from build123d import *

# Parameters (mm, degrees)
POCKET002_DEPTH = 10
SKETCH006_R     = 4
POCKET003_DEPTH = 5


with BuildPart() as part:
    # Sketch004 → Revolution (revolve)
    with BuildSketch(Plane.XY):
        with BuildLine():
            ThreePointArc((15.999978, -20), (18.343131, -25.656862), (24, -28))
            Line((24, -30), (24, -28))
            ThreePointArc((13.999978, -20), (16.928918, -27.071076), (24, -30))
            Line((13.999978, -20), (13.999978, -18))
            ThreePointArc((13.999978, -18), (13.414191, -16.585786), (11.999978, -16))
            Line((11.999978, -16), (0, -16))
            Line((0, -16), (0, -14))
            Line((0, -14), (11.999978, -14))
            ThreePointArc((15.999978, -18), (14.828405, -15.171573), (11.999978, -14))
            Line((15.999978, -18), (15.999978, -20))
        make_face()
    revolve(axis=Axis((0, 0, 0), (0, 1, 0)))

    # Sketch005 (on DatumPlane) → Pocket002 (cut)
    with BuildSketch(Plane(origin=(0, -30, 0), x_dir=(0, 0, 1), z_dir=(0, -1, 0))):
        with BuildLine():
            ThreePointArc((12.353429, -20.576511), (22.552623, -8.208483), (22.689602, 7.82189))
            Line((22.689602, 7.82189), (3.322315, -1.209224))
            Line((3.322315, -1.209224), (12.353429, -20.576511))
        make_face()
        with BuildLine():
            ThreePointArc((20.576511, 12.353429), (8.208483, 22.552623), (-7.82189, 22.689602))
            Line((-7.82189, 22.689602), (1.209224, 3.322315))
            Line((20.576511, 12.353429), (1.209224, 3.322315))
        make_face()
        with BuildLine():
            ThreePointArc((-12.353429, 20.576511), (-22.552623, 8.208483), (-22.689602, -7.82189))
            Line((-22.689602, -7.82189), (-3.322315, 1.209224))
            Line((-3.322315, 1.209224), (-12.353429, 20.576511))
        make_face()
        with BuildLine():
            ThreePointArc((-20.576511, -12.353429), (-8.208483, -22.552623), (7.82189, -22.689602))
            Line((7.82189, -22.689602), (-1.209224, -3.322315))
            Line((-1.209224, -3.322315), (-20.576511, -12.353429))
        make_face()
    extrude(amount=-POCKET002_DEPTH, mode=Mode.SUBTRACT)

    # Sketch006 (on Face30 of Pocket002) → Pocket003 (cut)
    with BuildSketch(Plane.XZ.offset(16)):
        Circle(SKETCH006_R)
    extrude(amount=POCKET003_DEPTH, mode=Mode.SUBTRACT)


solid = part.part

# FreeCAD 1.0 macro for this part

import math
import FreeCAD as App
import Part
import Sketcher
from FreeCAD import Vector
Q = App.Units.Quantity

doc = App.newDocument("Part")
body = doc.addObject("PartDesign::Body", "Body")

sketch1 = body.newObject("Sketcher::SketchObject", "Sketch")
sketch1.AttachmentSupport = (doc.getObject("XY_Plane"), [""])
sketch1.MapMode = "FlatFace"
sketch1.addGeometry(Part.ArcOfCircle(Part.Circle(Vector(24, -20, 0), Vector(0, 0, 1), 8), math.radians(180), math.radians(270)), False)
sketch1.addGeometry(Part.LineSegment(Vector(16, -20, 0), Vector(16, -18, 0)), False)
sketch1.addGeometry(Part.ArcOfCircle(Part.Circle(Vector(12, -18, 0), Vector(0, 0, 1), 4), math.radians(0), math.radians(90)), False)
sketch1.addGeometry(Part.LineSegment(Vector(12, -14, 0), Vector(0, -14, 0)), False)
sketch1.addGeometry(Part.LineSegment(Vector(0, -14, 0), Vector(0, -16, 0)), False)
sketch1.addGeometry(Part.LineSegment(Vector(0, -16, 0), Vector(12, -16, 0)), False)
sketch1.addGeometry(Part.ArcOfCircle(Part.Circle(Vector(12, -18, 0), Vector(0, 0, 1), 2), math.radians(0), math.radians(90)), False)
sketch1.addGeometry(Part.LineSegment(Vector(14, -18, 0), Vector(14, -20, 0)), False)
sketch1.addGeometry(Part.ArcOfCircle(Part.Circle(Vector(24, -20, 0), Vector(0, 0, 1), 10), math.radians(180), math.radians(270)), False)
sketch1.addGeometry(Part.LineSegment(Vector(24, -30, 0), Vector(24, -28, 0)), False)
sketch1.addConstraint(Sketcher.Constraint("Tangent", 0, 1, 1, 1))
sketch1.addConstraint(Sketcher.Constraint("Tangent", 1, 2, 2, 1))
sketch1.addConstraint(Sketcher.Constraint("Tangent", 2, 2, 3, 1))
sketch1.addConstraint(Sketcher.Constraint("Coincident", 3, 2, 4, 1))
sketch1.addConstraint(Sketcher.Constraint("Coincident", 4, 2, 5, 1))
sketch1.addConstraint(Sketcher.Constraint("Tangent", 5, 2, 6, 2))
sketch1.addConstraint(Sketcher.Constraint("Tangent", 6, 1, 7, 1))
sketch1.addConstraint(Sketcher.Constraint("Tangent", 7, 2, 8, 1))
sketch1.addConstraint(Sketcher.Constraint("Coincident", 8, 2, 9, 1))
sketch1.addConstraint(Sketcher.Constraint("Coincident", 9, 2, 0, 2))
sketch1.addConstraint(Sketcher.Constraint("Vertical", 1))
sketch1.addConstraint(Sketcher.Constraint("Horizontal", 3))
sketch1.addConstraint(Sketcher.Constraint("Vertical", 4))
sketch1.addConstraint(Sketcher.Constraint("Horizontal", 5))
sketch1.addConstraint(Sketcher.Constraint("Vertical", 7))
sketch1.addConstraint(Sketcher.Constraint("Vertical", 9))
sketch1.addConstraint(Sketcher.Constraint("Coincident", 6, 3, 2, 3))
sketch1.addConstraint(Sketcher.Constraint("Coincident", 8, 3, 0, 3))
sketch1.addConstraint(Sketcher.Constraint("PointOnObject", 3, 2, -2))
sketch1.addConstraint(Sketcher.Constraint("Equal", 1, 4))
sketch1.addConstraint(Sketcher.Constraint("Radius", 0, Q("7.999999 mm")))
sketch1.addConstraint(Sketcher.Constraint("Radius", 2, Q("4 mm")))
sketch1.addConstraint(Sketcher.Constraint("Radius", 6, Q("2 mm")))
sketch1.addConstraint(Sketcher.Constraint("DistanceY", 0, 3, -1, 1, Q("20.000001 mm")))
sketch1.addConstraint(Sketcher.Constraint("DistanceX", -1, 1, 8, 2, Q("24 mm")))
sketch1.addConstraint(Sketcher.Constraint("DistanceX", 3, 2, 3, 1, Q("11.999978 mm")))
revolution = body.newObject("PartDesign::Revolution", "Revolution")
revolution.Profile = sketch1
revolution.ReferenceAxis = (sketch1, ["V_Axis"])
revolution.Angle = 360

sketch2 = body.newObject("Sketcher::SketchObject", "Sketch001")
sketch2.AttachmentSupport = (doc.getObject("XZ_Plane"), [""])
sketch2.MapMode = "FlatFace"
sketch2.AttachmentOffset = App.Placement(Vector(0, 0, 30), App.Rotation())
sketch2.addGeometry(Part.ArcOfCircle(Part.Circle(Vector(0, 0, 0), Vector(0, 0, 1), 24), math.radians(31), math.radians(109)), False)
sketch2.addGeometry(Part.LineSegment(Vector(-8, 23, 0), Vector(1, 3, 0)), False)
sketch2.addGeometry(Part.LineSegment(Vector(1, 3, 0), Vector(21, 12, 0)), False)
sketch2.addGeometry(Part.ArcOfCircle(Part.Circle(Vector(0, 0, 0), Vector(0, 0, 1), 24), math.radians(121), math.radians(199)), False)
sketch2.addGeometry(Part.LineSegment(Vector(-23, -8, 0), Vector(-3, 1, 0)), False)
sketch2.addGeometry(Part.LineSegment(Vector(-3, 1, 0), Vector(-12, 21, 0)), False)
sketch2.addGeometry(Part.ArcOfCircle(Part.Circle(Vector(0, 0, 0), Vector(0, 0, 1), 24), math.radians(-149), math.radians(-71)), False)
sketch2.addGeometry(Part.LineSegment(Vector(8, -23, 0), Vector(-1, -3, 0)), False)
sketch2.addGeometry(Part.LineSegment(Vector(-1, -3, 0), Vector(-21, -12, 0)), False)
sketch2.addGeometry(Part.ArcOfCircle(Part.Circle(Vector(0, 0, 0), Vector(0, 0, 1), 24), math.radians(-59), math.radians(19)), False)
sketch2.addGeometry(Part.LineSegment(Vector(23, 8, 0), Vector(3, -1, 0)), False)
sketch2.addGeometry(Part.LineSegment(Vector(3, -1, 0), Vector(12, -21, 0)), False)
sketch2.addConstraint(Sketcher.Constraint("Coincident", 0, 2, 1, 1))
sketch2.addConstraint(Sketcher.Constraint("Coincident", 1, 2, 2, 1))
sketch2.addConstraint(Sketcher.Constraint("Coincident", 2, 2, 0, 1))
sketch2.addConstraint(Sketcher.Constraint("Coincident", 3, 2, 4, 1))
sketch2.addConstraint(Sketcher.Constraint("Coincident", 4, 2, 5, 1))
sketch2.addConstraint(Sketcher.Constraint("Coincident", 5, 2, 3, 1))
sketch2.addConstraint(Sketcher.Constraint("Coincident", 6, 2, 7, 1))
sketch2.addConstraint(Sketcher.Constraint("Coincident", 7, 2, 8, 1))
sketch2.addConstraint(Sketcher.Constraint("Coincident", 8, 2, 6, 1))
sketch2.addConstraint(Sketcher.Constraint("Coincident", 9, 2, 10, 1))
sketch2.addConstraint(Sketcher.Constraint("Coincident", 10, 2, 11, 1))
sketch2.addConstraint(Sketcher.Constraint("Coincident", 11, 2, 9, 1))
sketch2.addConstraint(Sketcher.Constraint("Coincident", 0, 3, -1, 1))
sketch2.addConstraint(Sketcher.Constraint("Coincident", 3, 3, -1, 1))
sketch2.addConstraint(Sketcher.Constraint("Coincident", 6, 3, -1, 1))
sketch2.addConstraint(Sketcher.Constraint("Coincident", 9, 3, -1, 1))
sketch2.addConstraint(Sketcher.Constraint("Equal", 0, 3))
sketch2.addConstraint(Sketcher.Constraint("Equal", 3, 6))
sketch2.addConstraint(Sketcher.Constraint("Equal", 6, 9))
sketch2.addConstraint(Sketcher.Constraint("Symmetric", 1, 2, 7, 2, -1, 1))
sketch2.addConstraint(Sketcher.Constraint("Symmetric", 4, 2, 10, 2, -1, 1))
sketch2.addConstraint(Sketcher.Constraint("Perpendicular", 1, 2))
sketch2.addConstraint(Sketcher.Constraint("Parallel", 2, 4))
sketch2.addConstraint(Sketcher.Constraint("Perpendicular", 4, 5))
sketch2.addConstraint(Sketcher.Constraint("Parallel", 5, 7))
sketch2.addConstraint(Sketcher.Constraint("Perpendicular", 7, 8))
sketch2.addConstraint(Sketcher.Constraint("Parallel", 8, 10))
sketch2.addConstraint(Sketcher.Constraint("Perpendicular", 10, 11))
sketch2.addConstraint(Sketcher.Constraint("Equal", 1, 2))
sketch2.addConstraint(Sketcher.Constraint("Equal", 2, 4))
sketch2.addConstraint(Sketcher.Constraint("Equal", 4, 5))
sketch2.addConstraint(Sketcher.Constraint("Radius", 0, Q("24.000001 mm")))
sketch2.addConstraint(Sketcher.Constraint("Angle", 1, Q("-65.000001 deg")))
sketch2.addConstraint(Sketcher.Constraint("DistanceY", -1, 1, 0, 2, Q("22.689602 mm")))
pocket1 = body.newObject("PartDesign::Pocket", "Pocket")
pocket1.Profile = sketch2
pocket1.Length = 10

sketch3 = body.newObject("Sketcher::SketchObject", "Sketch002")
sketch3.AttachmentSupport = (doc.getObject("XZ_Plane"), [""])
sketch3.MapMode = "FlatFace"
sketch3.AttachmentOffset = App.Placement(Vector(0, 0, 16), App.Rotation())
sketch3.addGeometry(Part.Circle(Vector(0, 0, 0), Vector(0, 0, 1), 4), False)
sketch3.addConstraint(Sketcher.Constraint("Coincident", 0, 3, -1, 1))
sketch3.addConstraint(Sketcher.Constraint("Diameter", 0, Q("8 mm")))
pocket2 = body.newObject("PartDesign::Pocket", "Pocket001")
pocket2.Profile = sketch3
pocket2.Length = 5
pocket2.Reversed = True

doc.recompute()
